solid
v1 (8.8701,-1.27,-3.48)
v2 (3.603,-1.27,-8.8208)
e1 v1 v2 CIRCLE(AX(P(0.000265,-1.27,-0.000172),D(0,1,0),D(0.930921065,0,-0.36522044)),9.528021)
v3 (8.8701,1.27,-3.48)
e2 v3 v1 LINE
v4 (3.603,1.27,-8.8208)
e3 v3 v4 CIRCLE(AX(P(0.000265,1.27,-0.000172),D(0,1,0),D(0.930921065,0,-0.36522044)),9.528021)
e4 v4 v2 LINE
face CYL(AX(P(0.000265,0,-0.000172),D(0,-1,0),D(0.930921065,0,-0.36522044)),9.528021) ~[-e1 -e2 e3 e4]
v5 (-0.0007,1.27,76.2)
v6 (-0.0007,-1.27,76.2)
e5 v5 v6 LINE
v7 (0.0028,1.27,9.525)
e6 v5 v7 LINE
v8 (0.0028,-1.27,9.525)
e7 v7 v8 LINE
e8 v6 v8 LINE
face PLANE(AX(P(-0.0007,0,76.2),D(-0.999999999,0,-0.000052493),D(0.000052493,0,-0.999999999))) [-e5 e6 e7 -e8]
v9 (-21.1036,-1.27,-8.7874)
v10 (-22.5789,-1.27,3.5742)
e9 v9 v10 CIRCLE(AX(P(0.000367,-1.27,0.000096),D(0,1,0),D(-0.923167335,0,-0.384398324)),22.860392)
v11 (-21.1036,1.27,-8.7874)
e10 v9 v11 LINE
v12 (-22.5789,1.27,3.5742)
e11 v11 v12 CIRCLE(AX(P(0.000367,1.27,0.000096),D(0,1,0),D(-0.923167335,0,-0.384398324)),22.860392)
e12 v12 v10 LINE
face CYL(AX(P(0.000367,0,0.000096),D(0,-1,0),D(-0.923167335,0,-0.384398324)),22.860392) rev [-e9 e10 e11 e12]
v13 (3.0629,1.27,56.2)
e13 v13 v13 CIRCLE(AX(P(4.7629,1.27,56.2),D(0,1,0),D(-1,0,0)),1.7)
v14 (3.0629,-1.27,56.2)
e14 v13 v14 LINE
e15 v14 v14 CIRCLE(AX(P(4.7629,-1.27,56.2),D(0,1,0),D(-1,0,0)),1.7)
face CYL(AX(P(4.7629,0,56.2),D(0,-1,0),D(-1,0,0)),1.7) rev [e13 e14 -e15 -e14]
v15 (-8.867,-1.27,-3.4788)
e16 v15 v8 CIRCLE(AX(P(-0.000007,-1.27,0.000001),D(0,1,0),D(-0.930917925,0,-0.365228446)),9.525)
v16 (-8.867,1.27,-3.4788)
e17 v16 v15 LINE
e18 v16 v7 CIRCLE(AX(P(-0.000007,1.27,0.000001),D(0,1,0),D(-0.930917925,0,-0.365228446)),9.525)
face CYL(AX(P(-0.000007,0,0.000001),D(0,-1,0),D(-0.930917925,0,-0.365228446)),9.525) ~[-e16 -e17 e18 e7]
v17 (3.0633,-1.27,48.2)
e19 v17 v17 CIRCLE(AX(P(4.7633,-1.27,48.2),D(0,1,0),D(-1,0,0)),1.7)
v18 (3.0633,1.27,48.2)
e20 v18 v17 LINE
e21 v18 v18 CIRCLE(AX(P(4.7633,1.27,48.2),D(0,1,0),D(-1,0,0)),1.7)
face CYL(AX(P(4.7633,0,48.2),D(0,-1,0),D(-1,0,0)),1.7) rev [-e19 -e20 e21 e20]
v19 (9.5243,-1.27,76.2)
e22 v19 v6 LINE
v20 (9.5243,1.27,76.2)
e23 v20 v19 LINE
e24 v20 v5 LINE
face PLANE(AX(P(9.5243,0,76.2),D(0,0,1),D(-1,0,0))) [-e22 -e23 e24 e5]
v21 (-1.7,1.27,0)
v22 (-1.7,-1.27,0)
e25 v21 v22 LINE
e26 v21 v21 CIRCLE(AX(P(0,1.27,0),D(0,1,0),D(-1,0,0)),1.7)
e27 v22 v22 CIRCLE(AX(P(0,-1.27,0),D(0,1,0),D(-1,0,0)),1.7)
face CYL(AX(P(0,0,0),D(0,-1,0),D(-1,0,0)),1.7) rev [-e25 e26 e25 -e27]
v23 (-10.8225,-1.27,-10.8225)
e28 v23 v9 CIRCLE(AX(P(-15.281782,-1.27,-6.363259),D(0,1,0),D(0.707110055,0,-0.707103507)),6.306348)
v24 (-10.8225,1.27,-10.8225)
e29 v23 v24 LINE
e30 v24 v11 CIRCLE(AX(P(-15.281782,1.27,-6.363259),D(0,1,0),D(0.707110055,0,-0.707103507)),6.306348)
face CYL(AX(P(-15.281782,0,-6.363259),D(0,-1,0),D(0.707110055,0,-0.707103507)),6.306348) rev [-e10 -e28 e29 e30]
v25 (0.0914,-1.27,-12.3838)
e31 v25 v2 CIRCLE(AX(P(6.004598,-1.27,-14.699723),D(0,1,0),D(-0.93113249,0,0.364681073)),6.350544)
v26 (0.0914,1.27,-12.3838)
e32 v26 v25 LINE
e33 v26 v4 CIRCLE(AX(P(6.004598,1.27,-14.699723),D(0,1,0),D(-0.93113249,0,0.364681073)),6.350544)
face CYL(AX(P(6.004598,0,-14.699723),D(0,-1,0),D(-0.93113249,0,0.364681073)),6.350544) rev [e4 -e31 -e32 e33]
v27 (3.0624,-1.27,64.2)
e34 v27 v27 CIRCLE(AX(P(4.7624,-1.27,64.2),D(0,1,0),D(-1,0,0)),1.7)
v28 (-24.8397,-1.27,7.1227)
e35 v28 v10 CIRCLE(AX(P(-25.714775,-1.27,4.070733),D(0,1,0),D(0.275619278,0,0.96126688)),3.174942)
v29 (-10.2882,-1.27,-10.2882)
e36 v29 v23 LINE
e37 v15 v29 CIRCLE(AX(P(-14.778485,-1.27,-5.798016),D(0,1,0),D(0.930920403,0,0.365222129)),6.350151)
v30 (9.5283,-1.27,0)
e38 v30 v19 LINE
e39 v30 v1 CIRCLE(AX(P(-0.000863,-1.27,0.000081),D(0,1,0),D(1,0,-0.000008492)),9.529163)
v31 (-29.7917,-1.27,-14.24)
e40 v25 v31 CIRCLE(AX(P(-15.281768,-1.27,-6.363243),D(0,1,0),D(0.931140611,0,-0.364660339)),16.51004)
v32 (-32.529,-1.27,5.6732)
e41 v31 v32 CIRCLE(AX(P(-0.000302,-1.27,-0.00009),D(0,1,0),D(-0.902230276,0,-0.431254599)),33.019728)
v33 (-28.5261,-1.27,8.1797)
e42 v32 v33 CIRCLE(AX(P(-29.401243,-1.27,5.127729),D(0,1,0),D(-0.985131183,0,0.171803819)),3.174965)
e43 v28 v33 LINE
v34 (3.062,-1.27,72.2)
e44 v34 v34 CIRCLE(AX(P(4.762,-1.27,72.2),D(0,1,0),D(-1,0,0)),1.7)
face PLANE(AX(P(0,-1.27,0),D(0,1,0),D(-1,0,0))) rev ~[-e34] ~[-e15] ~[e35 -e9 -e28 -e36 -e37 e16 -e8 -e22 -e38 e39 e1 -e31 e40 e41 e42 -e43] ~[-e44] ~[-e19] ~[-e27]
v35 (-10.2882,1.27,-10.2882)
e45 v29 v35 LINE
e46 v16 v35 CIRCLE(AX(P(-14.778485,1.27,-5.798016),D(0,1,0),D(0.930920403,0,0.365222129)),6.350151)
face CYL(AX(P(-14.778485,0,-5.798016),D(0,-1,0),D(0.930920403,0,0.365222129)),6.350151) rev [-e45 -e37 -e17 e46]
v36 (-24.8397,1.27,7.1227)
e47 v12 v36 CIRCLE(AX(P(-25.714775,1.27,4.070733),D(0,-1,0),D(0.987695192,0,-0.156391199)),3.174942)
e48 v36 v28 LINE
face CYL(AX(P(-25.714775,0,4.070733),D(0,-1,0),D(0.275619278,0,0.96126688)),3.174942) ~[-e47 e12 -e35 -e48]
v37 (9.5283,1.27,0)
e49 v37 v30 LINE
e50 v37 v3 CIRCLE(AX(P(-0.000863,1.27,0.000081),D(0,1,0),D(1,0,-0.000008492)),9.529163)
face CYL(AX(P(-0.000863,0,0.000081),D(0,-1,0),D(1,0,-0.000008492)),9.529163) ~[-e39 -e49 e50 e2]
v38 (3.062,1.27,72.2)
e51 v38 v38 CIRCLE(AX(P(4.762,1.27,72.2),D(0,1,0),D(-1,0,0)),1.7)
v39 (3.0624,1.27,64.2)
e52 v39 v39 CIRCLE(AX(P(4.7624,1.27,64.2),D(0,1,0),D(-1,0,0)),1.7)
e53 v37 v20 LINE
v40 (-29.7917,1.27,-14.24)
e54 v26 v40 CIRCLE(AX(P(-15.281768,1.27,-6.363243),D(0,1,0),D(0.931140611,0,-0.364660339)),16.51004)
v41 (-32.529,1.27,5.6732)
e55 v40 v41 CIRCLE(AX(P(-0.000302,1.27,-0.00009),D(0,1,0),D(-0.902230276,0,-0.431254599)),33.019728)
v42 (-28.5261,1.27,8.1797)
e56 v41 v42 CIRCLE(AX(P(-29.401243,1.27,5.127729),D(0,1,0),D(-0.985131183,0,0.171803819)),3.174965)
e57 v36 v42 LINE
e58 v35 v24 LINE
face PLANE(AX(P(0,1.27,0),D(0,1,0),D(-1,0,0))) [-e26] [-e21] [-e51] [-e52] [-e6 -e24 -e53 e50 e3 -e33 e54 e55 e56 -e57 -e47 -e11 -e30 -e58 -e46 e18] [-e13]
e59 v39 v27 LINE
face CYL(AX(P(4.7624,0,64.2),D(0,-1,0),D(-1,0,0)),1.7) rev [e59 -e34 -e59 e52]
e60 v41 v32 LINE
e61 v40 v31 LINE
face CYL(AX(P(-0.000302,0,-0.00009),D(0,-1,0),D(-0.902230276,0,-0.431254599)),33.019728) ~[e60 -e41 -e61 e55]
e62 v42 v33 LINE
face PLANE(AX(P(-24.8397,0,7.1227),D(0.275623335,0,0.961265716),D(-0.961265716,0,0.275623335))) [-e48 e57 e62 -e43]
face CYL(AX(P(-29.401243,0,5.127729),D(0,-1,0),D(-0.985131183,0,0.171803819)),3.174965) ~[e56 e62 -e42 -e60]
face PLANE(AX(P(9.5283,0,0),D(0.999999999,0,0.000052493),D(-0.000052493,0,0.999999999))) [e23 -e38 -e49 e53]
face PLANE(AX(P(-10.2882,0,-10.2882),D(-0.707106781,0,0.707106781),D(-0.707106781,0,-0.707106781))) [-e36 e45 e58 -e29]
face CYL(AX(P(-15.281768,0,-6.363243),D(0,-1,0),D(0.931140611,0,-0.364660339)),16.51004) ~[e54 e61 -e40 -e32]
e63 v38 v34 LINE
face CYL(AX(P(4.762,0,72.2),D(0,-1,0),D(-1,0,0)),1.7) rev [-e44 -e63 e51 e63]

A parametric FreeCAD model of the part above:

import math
import FreeCAD as App
import Part
import Sketcher

V = App.Vector
Q = App.Units.Quantity

doc = App.newDocument("Part")
body = doc.addObject("PartDesign::Body", "Body")

sketch1 = body.newObject("Sketcher::SketchObject", "Sketch")
sketch1.AttachmentSupport = (doc.getObject("XZ_Plane"), [""])
sketch1.MapMode = "FlatFace"
sketch1.addGeometry(Part.ArcOfCircle(Part.Circle(V(0, 0, 0), V(0, 0, 1), 22.860016), math.radians(171.004818), math.radians(202.606523)), False)
sketch1.addGeometry(Part.ArcOfCircle(Part.Circle(V(-15.2818, -6.3632, 0), V(0, 0, 1), 6.306403), math.radians(-157.393134), math.radians(-45)), False)
sketch1.addGeometry(Part.LineSegment(V(-10.8225, -10.8225, 0), V(-10.2882, -10.2882, 0)), False)
sketch1.addGeometry(Part.ArcOfCircle(Part.Circle(V(-14.7783, -5.798, 0), V(0, 0, 1), 6.349973), math.radians(-45.000638), math.radians(21.421732)), False)
sketch1.addGeometry(Part.ArcOfCircle(Part.Circle(V(0, 0, 0), V(0, 0, 1), 9.525006), math.radians(89.983157), math.radians(201.421622)), False)
sketch1.addGeometry(Part.LineSegment(V(0.0028, 9.525, 0), V(-0.0007, 76.2, 0)), False)
sketch1.addGeometry(Part.LineSegment(V(-0.0007, 76.2, 0), V(9.5243, 76.2, 0)), False)
sketch1.addGeometry(Part.LineSegment(V(9.5243, 76.2, 0), V(9.5283, 0, 0)), False)
sketch1.addGeometry(Part.ArcOfCircle(Part.Circle(V(0, 0, 0), V(0, 0, 1), 9.52833), math.radians(-21.421531), math.radians(0)), False)
sketch1.addGeometry(Part.ArcOfCircle(Part.Circle(V(0, 0, 0), V(0, 0, 1), 9.5283), math.radians(-67.781637), math.radians(-21.421531)), False)
sketch1.addGeometry(Part.ArcOfCircle(Part.Circle(V(6.0041, -14.6994, 0), V(0, 0, 1), 6.349963), math.radians(112.217441), math.radians(158.613121)), False)
sketch1.addGeometry(Part.ArcOfCircle(Part.Circle(V(-15.2818, -6.3632, 0), V(0, 0, 1), 16.510085), math.radians(-151.50437), math.radians(-21.386781)), False)
sketch1.addGeometry(Part.ArcOfCircle(Part.Circle(V(0, 0, 0), V(0, 0, 1), 33.020039), math.radians(170.10687), math.radians(205.547122)), False)
sketch1.addGeometry(Part.ArcOfCircle(Part.Circle(V(-29.4012, 5.1277, 0), V(0, 0, 1), 3.175012), math.radians(74.000814), math.radians(170.106906)), False)
sketch1.addGeometry(Part.LineSegment(V(-28.5261, 8.1797, 0), V(-24.8397, 7.1227, 0)), False)
sketch1.addGeometry(Part.ArcOfCircle(Part.Circle(V(-25.7148, 4.0707, 0), V(0, 0, 1), 3.174981), math.radians(-8.996831), math.radians(74.000814)), False)
sketch1.addGeometry(Part.Circle(V(0, 0, 0), V(0, 0, 1), 1.7), False)
sketch1.addGeometry(Part.Circle(V(4.7633, 48.2, 0), V(0, 0, 1), 1.7), False)
sketch1.addGeometry(Part.Circle(V(4.7629, 56.2, 0), V(0, 0, 1), 1.7), False)
sketch1.addGeometry(Part.Circle(V(4.7624, 64.2, 0), V(0, 0, 1), 1.7), False)
sketch1.addGeometry(Part.Circle(V(4.762, 72.2, 0), V(0, 0, 1), 1.7), False)
sketch1.addConstraint(Sketcher.Constraint("Coincident", 0, 2, 1, 1))
sketch1.addConstraint(Sketcher.Constraint("Coincident", 1, 2, 2, 1))
sketch1.addConstraint(Sketcher.Constraint("Coincident", 2, 2, 3, 1))
sketch1.addConstraint(Sketcher.Constraint("Coincident", 3, 2, 4, 2))
sketch1.addConstraint(Sketcher.Constraint("Coincident", 4, 1, 5, 1))
sketch1.addConstraint(Sketcher.Constraint("Coincident", 5, 2, 6, 1))
sketch1.addConstraint(Sketcher.Constraint("Coincident", 6, 2, 7, 1))
sketch1.addConstraint(Sketcher.Constraint("Coincident", 7, 2, 8, 2))
sketch1.addConstraint(Sketcher.Constraint("Coincident", 8, 1, 9, 2))
sketch1.addConstraint(Sketcher.Constraint("Coincident", 9, 1, 10, 1))
sketch1.addConstraint(Sketcher.Constraint("Coincident", 10, 2, 11, 2))
sketch1.addConstraint(Sketcher.Constraint("Coincident", 11, 1, 12, 2))
sketch1.addConstraint(Sketcher.Constraint("Coincident", 12, 1, 13, 2))
sketch1.addConstraint(Sketcher.Constraint("Coincident", 13, 1, 14, 1))
sketch1.addConstraint(Sketcher.Constraint("Coincident", 14, 2, 15, 2))
sketch1.addConstraint(Sketcher.Constraint("Coincident", 15, 1, 0, 1))
sketch1.addConstraint(Sketcher.Constraint("Horizontal", 6))
sketch1.addConstraint(Sketcher.Constraint("Coincident", 0, 3, -1, 1))
sketch1.addConstraint(Sketcher.Constraint("Coincident", 4, 3, -1, 1))
sketch1.addConstraint(Sketcher.Constraint("Coincident", 8, 3, -1, 1))
sketch1.addConstraint(Sketcher.Constraint("Coincident", 9, 3, -1, 1))
sketch1.addConstraint(Sketcher.Constraint("Coincident", 12, 3, -1, 1))
sketch1.addConstraint(Sketcher.Constraint("Coincident", 16, 3, -1, 1))
sketch1.addConstraint(Sketcher.Constraint("Coincident", 11, 3, 1, 3))
sketch1.addConstraint(Sketcher.Constraint("PointOnObject", 7, 2, -1))
sketch1.addConstraint(Sketcher.Constraint("Radius", 0, Q("0.9 in")))
sketch1.addConstraint(Sketcher.Constraint("Radius", 12, Q("1.3 in")))
sketch1.addConstraint(Sketcher.Constraint("Radius", 3, Q("0.25 in")))
sketch1.addConstraint(Sketcher.Constraint("Radius", 10, Q("0.25 in")))
sketch1.addConstraint(Sketcher.Constraint("Radius", 11, Q("0.65 in")))
sketch1.addConstraint(Sketcher.Constraint("Distance", 7, Q("3 in")))
sketch1.addConstraint(Sketcher.Constraint("Radius", 4, Q("0.375 in")))
sketch1.addConstraint(Sketcher.Constraint("Radius", 13, Q("0.125 in")))
sketch1.addConstraint(Sketcher.Constraint("Radius", 15, Q("0.125 in")))
sketch1.addConstraint(Sketcher.Constraint("Diameter", 16, 3.4))
sketch1.addConstraint(Sketcher.Constraint("Diameter", 17, 3.4))
sketch1.addConstraint(Sketcher.Constraint("Diameter", 18, 3.4))
sketch1.addConstraint(Sketcher.Constraint("Diameter", 19, 3.4))
sketch1.addConstraint(Sketcher.Constraint("Diameter", 20, 3.4))
sketch1.addConstraint(Sketcher.Constraint("DistanceX", 6, 1, 6, 2, Q("0.375 in")))
sketch1.addConstraint(Sketcher.Constraint("DistanceX", -1, 1, 19, 3, Q("0.1875 in")))
sketch1.addConstraint(Sketcher.Constraint("DistanceX", 5, 2, 20, 3, Q("0.1875 in")))
sketch1.addConstraint(Sketcher.Constraint("DistanceX", -1, 1, 18, 3, 4.763))
sketch1.addConstraint(Sketcher.Constraint("DistanceX", -1, 1, 20, 3, 4.762))
sketch1.addConstraint(Sketcher.Constraint("Radius", 1, 6.3064))
sketch1.addConstraint(Sketcher.Constraint("Radius", 8, 9.5283))
sketch1.addConstraint(Sketcher.Constraint("DistanceY", 17, 3, 18, 3, 8.0))
sketch1.addConstraint(Sketcher.Constraint("DistanceY", 18, 3, 19, 3, 8.0))
sketch1.addConstraint(Sketcher.Constraint("DistanceY", 19, 3, 20, 3, 8.0))
sketch1.addConstraint(Sketcher.Constraint("DistanceY", 20, 3, 5, 2, 4.0))
sketch1.addConstraint(Sketcher.Constraint("DistanceY", 8, 1, -1, 1, Q("0.137 in")))
sketch1.addConstraint(Sketcher.Constraint("DistanceX", 1, 2, 3, 2, Q("0.077 in")))
sketch1.addConstraint(Sketcher.Constraint("DistanceY", 0, 2, 13, 1, Q("0.668 in")))
sketch1.addConstraint(Sketcher.Constraint("DistanceX", 14, 2, 15, 1, Q("0.089 in")))
sketch1.addConstraint(Sketcher.Constraint("DistanceX", 15, 3, -1, 1, Q("1.0124 in")))
sketch1.addConstraint(Sketcher.Constraint("DistanceX", 3, 2, -1, 1, Q("0.3491 in")))
sketch1.addConstraint(Sketcher.Constraint("DistanceX", -1, 1, 4, 1, Q("0.0001 in")))
sketch1.addConstraint(Sketcher.Constraint("DistanceX", -1, 1, 10, 2, Q("0.0036 in")))
sketch1.addConstraint(Sketcher.Constraint("DistanceX", 11, 1, -1, 1, Q("1.1729 in")))
sketch1.addConstraint(Sketcher.Constraint("DistanceX", 3, 3, 10, 3, Q("0.8182 in")))
sketch1.addConstraint(Sketcher.Constraint("DistanceY", 1, 3, 13, 3, Q("0.4524 in")))
sketch1.addConstraint(Sketcher.Constraint("DistanceX", 0, 2, 1, 3, Q("0.2292 in")))
sketch1.addConstraint(Sketcher.Constraint("DistanceX", 1, 3, 2, 2, Q("0.1966 in")))
sketch1.addConstraint(Sketcher.Constraint("DistanceY", 15, 3, 12, 1, Q("0.0631 in")))
sketch1.addConstraint(Sketcher.Constraint("DistanceX", 14, 2, 0, 2, Q("0.1471 in")))
sketch1.addConstraint(Sketcher.Constraint("DistanceX", -1, 1, 17, 3, 4.7633))
sketch1.addConstraint(Sketcher.Constraint("DistanceX", -1, 1, 9, 1, 3.603))
pad1 = body.newObject("PartDesign::Pad", "Pad")
pad1.Profile = sketch1
pad1.Length = Q("0.1 in")
pad1.Midplane = True

doc.recompute()
